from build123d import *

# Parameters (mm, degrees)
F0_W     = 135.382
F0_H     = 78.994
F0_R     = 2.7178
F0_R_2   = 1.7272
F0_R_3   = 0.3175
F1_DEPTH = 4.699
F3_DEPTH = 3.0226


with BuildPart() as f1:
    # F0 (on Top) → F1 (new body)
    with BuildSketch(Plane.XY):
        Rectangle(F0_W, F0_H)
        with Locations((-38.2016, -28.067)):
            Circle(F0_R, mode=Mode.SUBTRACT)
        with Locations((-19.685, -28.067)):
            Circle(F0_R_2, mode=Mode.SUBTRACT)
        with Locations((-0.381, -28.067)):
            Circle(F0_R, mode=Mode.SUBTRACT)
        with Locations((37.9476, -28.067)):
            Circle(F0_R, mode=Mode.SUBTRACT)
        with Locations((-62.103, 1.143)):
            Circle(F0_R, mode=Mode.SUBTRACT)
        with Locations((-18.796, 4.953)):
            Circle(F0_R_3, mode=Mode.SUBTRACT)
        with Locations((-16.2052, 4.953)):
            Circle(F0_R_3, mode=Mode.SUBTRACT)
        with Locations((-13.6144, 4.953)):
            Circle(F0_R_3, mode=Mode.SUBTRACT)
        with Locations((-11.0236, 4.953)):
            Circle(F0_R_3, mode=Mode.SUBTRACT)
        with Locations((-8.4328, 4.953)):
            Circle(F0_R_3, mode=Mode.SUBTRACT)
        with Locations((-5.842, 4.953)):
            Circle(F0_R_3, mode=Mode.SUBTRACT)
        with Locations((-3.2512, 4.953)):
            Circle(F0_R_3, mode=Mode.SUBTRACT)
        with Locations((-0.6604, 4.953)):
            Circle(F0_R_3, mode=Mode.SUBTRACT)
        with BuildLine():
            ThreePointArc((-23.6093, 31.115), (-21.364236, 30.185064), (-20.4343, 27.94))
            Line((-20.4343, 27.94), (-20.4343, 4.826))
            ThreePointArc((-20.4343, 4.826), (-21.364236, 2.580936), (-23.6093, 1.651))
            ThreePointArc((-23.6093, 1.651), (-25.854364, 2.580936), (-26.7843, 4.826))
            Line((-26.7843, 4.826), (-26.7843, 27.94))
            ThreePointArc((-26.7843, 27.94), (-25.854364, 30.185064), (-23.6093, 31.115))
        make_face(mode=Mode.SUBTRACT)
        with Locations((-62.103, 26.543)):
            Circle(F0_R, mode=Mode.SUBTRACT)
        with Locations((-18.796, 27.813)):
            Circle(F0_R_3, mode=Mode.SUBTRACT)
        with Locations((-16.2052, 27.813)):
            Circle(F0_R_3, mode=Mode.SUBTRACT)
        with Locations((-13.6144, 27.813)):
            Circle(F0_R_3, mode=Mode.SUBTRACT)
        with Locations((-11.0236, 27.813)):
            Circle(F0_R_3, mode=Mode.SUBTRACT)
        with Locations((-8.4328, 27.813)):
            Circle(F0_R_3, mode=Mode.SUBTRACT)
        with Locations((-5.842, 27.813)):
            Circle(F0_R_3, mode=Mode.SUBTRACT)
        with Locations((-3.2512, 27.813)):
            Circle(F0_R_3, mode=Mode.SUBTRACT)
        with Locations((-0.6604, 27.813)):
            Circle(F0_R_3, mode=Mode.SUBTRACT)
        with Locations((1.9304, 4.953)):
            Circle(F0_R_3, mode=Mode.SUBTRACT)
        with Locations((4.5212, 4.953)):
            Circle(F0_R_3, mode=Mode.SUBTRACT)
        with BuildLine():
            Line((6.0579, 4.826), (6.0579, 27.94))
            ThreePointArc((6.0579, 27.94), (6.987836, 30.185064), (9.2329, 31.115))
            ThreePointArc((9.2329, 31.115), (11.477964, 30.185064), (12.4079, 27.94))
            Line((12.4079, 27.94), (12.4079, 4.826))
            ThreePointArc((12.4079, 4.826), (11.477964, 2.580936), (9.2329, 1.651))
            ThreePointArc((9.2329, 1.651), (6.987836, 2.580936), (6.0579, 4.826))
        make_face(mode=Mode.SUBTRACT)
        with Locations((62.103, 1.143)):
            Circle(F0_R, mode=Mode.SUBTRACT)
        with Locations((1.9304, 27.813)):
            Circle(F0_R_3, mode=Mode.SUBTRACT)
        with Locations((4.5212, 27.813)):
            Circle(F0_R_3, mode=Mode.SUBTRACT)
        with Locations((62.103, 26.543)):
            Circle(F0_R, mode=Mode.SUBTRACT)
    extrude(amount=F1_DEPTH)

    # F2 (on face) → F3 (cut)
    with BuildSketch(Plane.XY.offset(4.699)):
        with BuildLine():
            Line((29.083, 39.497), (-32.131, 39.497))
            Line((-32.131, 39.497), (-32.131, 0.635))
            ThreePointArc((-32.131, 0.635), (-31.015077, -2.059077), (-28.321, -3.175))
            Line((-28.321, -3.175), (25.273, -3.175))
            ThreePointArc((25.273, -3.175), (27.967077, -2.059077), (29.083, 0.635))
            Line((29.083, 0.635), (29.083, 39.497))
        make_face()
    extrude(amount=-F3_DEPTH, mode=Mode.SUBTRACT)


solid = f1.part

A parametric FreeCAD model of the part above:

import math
import FreeCAD as App
import Part
import Sketcher

V = App.Vector
Q = App.Units.Quantity


def add_polygon(sketch, points):
    """Adds a closed chain of lines whose ends are joined by coincident constraints."""
    first, n = sketch.GeometryCount, len(points)
    for a, b in zip(points, points[1:] + points[:1]):
        sketch.addGeometry(Part.LineSegment(App.Vector(*a, 0), App.Vector(*b, 0)), False)
    for i in range(n):
        sketch.addConstraint(Sketcher.Constraint("Coincident", first + i, 2, first + (i + 1) % n, 1))

doc = App.newDocument("Part")
body = doc.addObject("PartDesign::Body", "Body")

# Sketch on XY plane
sketch1 = body.newObject("Sketcher::SketchObject", "Sketch")
sketch1.AttachmentSupport = (doc.getObject("XY_Plane"), [""])
sketch1.MapMode = "FlatFace"
add_polygon(sketch1, [(-67.69, 39.5), (-67.69, -39.5), (67.69, -39.5), (67.69, 39.5)])  # lines 0-3
sketch1.addGeometry(Part.Circle(V(-38.2, -28.07, 0), V(0, 0, 1), 2.72), False)  # 4
sketch1.addGeometry(Part.Circle(V(-19.68, -28.07, 0), V(0, 0, 1), 1.73), False)  # 5
sketch1.addGeometry(Part.Circle(V(-0.38, -28.07, 0), V(0, 0, 1), 2.72), False)  # 6
sketch1.addGeometry(Part.Circle(V(37.95, -28.07, 0), V(0, 0, 1), 2.72), False)  # 7
sketch1.addGeometry(Part.Circle(V(-62.1, 1.14, 0), V(0, 0, 1), 2.72), False)  # 8
sketch1.addGeometry(Part.Circle(V(-18.8, 4.95, 0), V(0, 0, 1), 0.32), False)  # 9
sketch1.addGeometry(Part.Circle(V(-16.21, 4.95, 0), V(0, 0, 1), 0.32), False)  # 10
sketch1.addGeometry(Part.Circle(V(-13.61, 4.95, 0), V(0, 0, 1), 0.32), False)  # 11
sketch1.addGeometry(Part.Circle(V(-11.02, 4.95, 0), V(0, 0, 1), 0.32), False)  # 12
sketch1.addGeometry(Part.Circle(V(-8.43, 4.95, 0), V(0, 0, 1), 0.32), False)  # 13
sketch1.addGeometry(Part.Circle(V(-5.84, 4.95, 0), V(0, 0, 1), 0.32), False)  # 14
sketch1.addGeometry(Part.Circle(V(-3.25, 4.95, 0), V(0, 0, 1), 0.32), False)  # 15
sketch1.addGeometry(Part.Circle(V(-0.66, 4.95, 0), V(0, 0, 1), 0.32), False)  # 16
sketch1.addGeometry(Part.Circle(V(-62.1, 26.54, 0), V(0, 0, 1), 2.72), False)  # 17
sketch1.addGeometry(Part.ArcOfCircle(Part.Circle(V(-23.61, 27.94, 0), V(0, 0, 1), 3.18), math.radians(90), math.radians(180)), False)  # 18
sketch1.addGeometry(Part.ArcOfCircle(Part.Circle(V(-23.61, 27.94, 0), V(0, 0, 1), 3.18), math.radians(0), math.radians(90)), False)  # 19
sketch1.addGeometry(Part.LineSegment(V(-20.43, 27.94, 0), V(-20.43, 4.83, 0)), False)  # 20
sketch1.addGeometry(Part.ArcOfCircle(Part.Circle(V(-23.61, 4.83, 0), V(0, 0, 1), 3.18), math.radians(-90), math.radians(0)), False)  # 21
sketch1.addGeometry(Part.ArcOfCircle(Part.Circle(V(-23.61, 4.83, 0), V(0, 0, 1), 3.18), math.radians(-180), math.radians(-90)), False)  # 22
sketch1.addGeometry(Part.LineSegment(V(-26.78, 4.83, 0), V(-26.78, 27.94, 0)), False)  # 23
sketch1.addGeometry(Part.Circle(V(-18.8, 27.81, 0), V(0, 0, 1), 0.32), False)  # 24
sketch1.addGeometry(Part.Circle(V(-16.21, 27.81, 0), V(0, 0, 1), 0.32), False)  # 25
sketch1.addGeometry(Part.Circle(V(-13.61, 27.81, 0), V(0, 0, 1), 0.32), False)  # 26
sketch1.addGeometry(Part.Circle(V(-11.02, 27.81, 0), V(0, 0, 1), 0.32), False)  # 27
sketch1.addGeometry(Part.Circle(V(-8.43, 27.81, 0), V(0, 0, 1), 0.32), False)  # 28
sketch1.addGeometry(Part.Circle(V(-5.84, 27.81, 0), V(0, 0, 1), 0.32), False)  # 29
sketch1.addGeometry(Part.Circle(V(-3.25, 27.81, 0), V(0, 0, 1), 0.32), False)  # 30
sketch1.addGeometry(Part.Circle(V(-0.66, 27.81, 0), V(0, 0, 1), 0.32), False)  # 31
sketch1.addGeometry(Part.Circle(V(1.93, 4.95, 0), V(0, 0, 1), 0.32), False)  # 32
sketch1.addGeometry(Part.Circle(V(4.52, 4.95, 0), V(0, 0, 1), 0.32), False)  # 33
sketch1.addGeometry(Part.Circle(V(62.1, 1.14, 0), V(0, 0, 1), 2.72), False)  # 34
sketch1.addGeometry(Part.ArcOfCircle(Part.Circle(V(9.23, 4.83, 0), V(0, 0, 1), 3.18), math.radians(-180), math.radians(-90)), False)  # 35
sketch1.addGeometry(Part.LineSegment(V(6.06, 4.83, 0), V(6.06, 27.94, 0)), False)  # 36
sketch1.addGeometry(Part.ArcOfCircle(Part.Circle(V(9.23, 27.94, 0), V(0, 0, 1), 3.18), math.radians(90), math.radians(180)), False)  # 37
sketch1.addGeometry(Part.ArcOfCircle(Part.Circle(V(9.23, 27.94, 0), V(0, 0, 1), 3.18), math.radians(0), math.radians(90)), False)  # 38
sketch1.addGeometry(Part.LineSegment(V(12.41, 27.94, 0), V(12.41, 4.83, 0)), False)  # 39
sketch1.addGeometry(Part.ArcOfCircle(Part.Circle(V(9.23, 4.83, 0), V(0, 0, 1), 3.18), math.radians(-90), math.radians(0)), False)  # 40
sketch1.addGeometry(Part.Circle(V(1.93, 27.81, 0), V(0, 0, 1), 0.32), False)  # 41
sketch1.addGeometry(Part.Circle(V(4.52, 27.81, 0), V(0, 0, 1), 0.32), False)  # 42
sketch1.addGeometry(Part.Circle(V(62.1, 26.54, 0), V(0, 0, 1), 2.72), False)  # 43
sketch1.addConstraint([
    Sketcher.Constraint("Tangent", 18, 1, 19, 2),
    Sketcher.Constraint("Tangent", 19, 1, 20, 1),
    Sketcher.Constraint("Tangent", 20, 2, 21, 2),
    Sketcher.Constraint("Tangent", 21, 1, 22, 2),
    Sketcher.Constraint("Tangent", 22, 1, 23, 1),
    Sketcher.Constraint("Tangent", 23, 2, 18, 2),
    Sketcher.Constraint("Tangent", 35, 1, 36, 1),
    Sketcher.Constraint("Tangent", 36, 2, 37, 2),
    Sketcher.Constraint("Tangent", 37, 1, 38, 2),
    Sketcher.Constraint("Tangent", 38, 1, 39, 1),
    Sketcher.Constraint("Tangent", 39, 2, 40, 2),
    Sketcher.Constraint("Tangent", 40, 1, 35, 2),
    Sketcher.Constraint("Vertical", 0),
    Sketcher.Constraint("Horizontal", 1),
    Sketcher.Constraint("Vertical", 2),
    Sketcher.Constraint("Horizontal", 3),
    Sketcher.Constraint("Vertical", 20),
    Sketcher.Constraint("Vertical", 23),
    Sketcher.Constraint("Vertical", 36),
    Sketcher.Constraint("Vertical", 39),
    Sketcher.Constraint("Equal", 4, 6),
    Sketcher.Constraint("Equal", 6, 7),
    Sketcher.Constraint("Equal", 7, 8),
    Sketcher.Constraint("Equal", 9, 10),
    Sketcher.Constraint("Equal", 10, 11),
    Sketcher.Constraint("Equal", 11, 12),
    Sketcher.Constraint("Equal", 12, 13),
    Sketcher.Constraint("Equal", 13, 14),
    Sketcher.Constraint("Equal", 14, 15),
    Sketcher.Constraint("Equal", 15, 16),
    Sketcher.Constraint("Equal", 8, 17),
    Sketcher.Constraint("Equal", 18, 19),
    Sketcher.Constraint("Equal", 19, 21),
    Sketcher.Constraint("Equal", 16, 24),
    Sketcher.Constraint("Equal", 24, 25),
    Sketcher.Constraint("Equal", 25, 26),
    Sketcher.Constraint("Equal", 26, 27),
    Sketcher.Constraint("Equal", 27, 28),
    Sketcher.Constraint("Equal", 28, 29),
    Sketcher.Constraint("Equal", 29, 30),
    Sketcher.Constraint("Equal", 30, 31),
    Sketcher.Constraint("Equal", 31, 32),
    Sketcher.Constraint("Equal", 32, 33),
    Sketcher.Constraint("Equal", 17, 34),
    Sketcher.Constraint("Equal", 22, 35),
    Sketcher.Constraint("Equal", 35, 37),
    Sketcher.Constraint("Equal", 37, 38),
    Sketcher.Constraint("Equal", 33, 41),
    Sketcher.Constraint("Equal", 41, 42),
    Sketcher.Constraint("Equal", 34, 43),
    Sketcher.Constraint("Symmetric", 0, 2, 2, 2, -1, 1),
    Sketcher.Constraint("Symmetric", 8, 3, 34, 3, -2),
    Sketcher.Constraint("Symmetric", 17, 3, 43, 3, -2),
    Sketcher.Constraint("Horizontal", 4, 3, 5, 3),
    Sketcher.Constraint("Horizontal", 5, 3, 6, 3),
    Sketcher.Constraint("Horizontal", 6, 3, 7, 3),
    Sketcher.Constraint("Horizontal", 9, 3, 10, 3),
    Sketcher.Constraint("Horizontal", 10, 3, 11, 3),
    Sketcher.Constraint("Horizontal", 11, 3, 12, 3),
    Sketcher.Constraint("Horizontal", 12, 3, 13, 3),
    Sketcher.Constraint("Horizontal", 13, 3, 14, 3),
    Sketcher.Constraint("Horizontal", 14, 3, 15, 3),
    Sketcher.Constraint("Horizontal", 15, 3, 16, 3),
    Sketcher.Constraint("Horizontal", 24, 3, 25, 3),
    Sketcher.Constraint("Horizontal", 25, 3, 26, 3),
    Sketcher.Constraint("Horizontal", 26, 3, 27, 3),
    Sketcher.Constraint("Horizontal", 27, 3, 28, 3),
    Sketcher.Constraint("Horizontal", 28, 3, 29, 3),
    Sketcher.Constraint("Horizontal", 29, 3, 30, 3),
    Sketcher.Constraint("Horizontal", 30, 3, 31, 3),
    Sketcher.Constraint("Horizontal", 16, 3, 32, 3),
    Sketcher.Constraint("Horizontal", 32, 3, 33, 3),
    Sketcher.Constraint("Horizontal", 22, 3, 35, 3),
    Sketcher.Constraint("Horizontal", 19, 3, 37, 3),
    Sketcher.Constraint("Horizontal", 31, 3, 41, 3),
    Sketcher.Constraint("Horizontal", 41, 3, 42, 3),
    Sketcher.Constraint("Vertical", 8, 3, 17, 3),
    Sketcher.Constraint("Vertical", 9, 3, 24, 3),
    Sketcher.Constraint("Vertical", 10, 3, 25, 3),
    Sketcher.Constraint("Vertical", 11, 3, 26, 3),
    Sketcher.Constraint("Vertical", 12, 3, 27, 3),
    Sketcher.Constraint("Vertical", 13, 3, 28, 3),
    Sketcher.Constraint("Vertical", 14, 3, 29, 3),
    Sketcher.Constraint("Vertical", 15, 3, 30, 3),
    Sketcher.Constraint("Vertical", 16, 3, 31, 3),
    Sketcher.Constraint("Vertical", 32, 3, 41, 3),
    Sketcher.Constraint("Vertical", 33, 3, 42, 3),
    Sketcher.Constraint("Vertical", 22, 3, 18, 1),
    Sketcher.Constraint("Vertical", 18, 1, 21, 1),
    Sketcher.Constraint("Vertical", 40, 3, 37, 1),
    Sketcher.Constraint("Vertical", 37, 1, 40, 1),
    Sketcher.Constraint("Diameter", 4, Q("0.214 in")),
    Sketcher.Constraint("Diameter", 5, Q("0.136 in")),
    Sketcher.Constraint("Diameter", 9, Q("0.025 in")),
    Sketcher.Constraint("Radius", 18, Q("0.125 in")),
    Sketcher.Constraint("DistanceY", 8, 3, 17, 3, Q("1 in")),
    Sketcher.Constraint("DistanceX", 1, 1, 1, 2, Q("5.33 in")),
    Sketcher.Constraint("DistanceY", 0, 2, 0, 1, Q("3.11 in")),
    Sketcher.Constraint("DistanceY", 20, 2, 20, 1, Q("0.91 in")),
    Sketcher.Constraint("DistanceY", -1, 1, 18, 3, Q("1.1 in")),
    Sketcher.Constraint("DistanceY", 5, 3, 9, 3, Q("1.3 in")),
    Sketcher.Constraint("DistanceY", 9, 3, 24, 3, Q("0.9 in")),
    Sketcher.Constraint("DistanceY", 0, 2, 8, 3, Q("1.6 in")),
    Sketcher.Constraint("DistanceX", 9, 3, -1, 1, Q("0.74 in")),
    Sketcher.Constraint("DistanceX", 14, 3, -1, 1, Q("0.23 in")),
    Sketcher.Constraint("DistanceX", 5, 3, 6, 3, Q("0.76 in")),
    Sketcher.Constraint("DistanceY", 4, 3, 8, 3, Q("1.15 in")),
    Sketcher.Constraint("DistanceX", 8, 3, 5, 3, Q("1.67 in")),
    Sketcher.Constraint("DistanceX", 10, 3, 15, 3, Q("0.51 in")),
    Sketcher.Constraint("DistanceX", 11, 3, 16, 3, Q("0.51 in")),
    Sketcher.Constraint("DistanceX", 12, 3, 32, 3, Q("0.51 in")),
    Sketcher.Constraint("DistanceX", 13, 3, 33, 3, Q("0.51 in")),
    Sketcher.Constraint("DistanceX", 0, 2, 8, 3, Q("0.22 in")),
    Sketcher.Constraint("DistanceX", 4, 3, -1, 1, Q("1.504 in")),
    Sketcher.Constraint("DistanceX", -1, 1, 7, 3, Q("1.494 in")),
    Sketcher.Constraint("DistanceX", 10, 3, -1, 1, Q("0.638 in")),
    Sketcher.Constraint("DistanceX", 11, 3, -1, 1, Q("0.536 in")),
    Sketcher.Constraint("DistanceX", 12, 3, -1, 1, Q("0.434 in")),
    Sketcher.Constraint("DistanceX", 13, 3, -1, 1, Q("0.332 in")),
    Sketcher.Constraint("DistanceX", 18, 3, -1, 1, Q("0.9295 in")),
    Sketcher.Constraint("DistanceX", -1, 1, 35, 3, Q("0.3635 in")),
])
pad1 = body.newObject("PartDesign::Pad", "Pad")
pad1.Profile = sketch1
pad1.Length = Q("0.185 in")

# Sketch on XY plane
sketch2 = body.newObject("Sketcher::SketchObject", "Sketch001")
sketch2.AttachmentSupport = (doc.getObject("XY_Plane"), [""])
sketch2.MapMode = "FlatFace"
sketch2.AttachmentOffset = App.Placement(V(0, 0, 0.185 * 25.4), App.Rotation())
sketch2.addGeometry([
    Part.LineSegment(V(29.1, 39.5, 0), V(-32.1, 39.5, 0)),  # 0
    Part.LineSegment(V(-32.1, 39.5, 0), V(-32.1, 0.6, 0)),  # 1
    Part.ArcOfCircle(Part.Circle(V(-28.3, 0.6, 0), V(0, 0, 1), 3.8), math.radians(180), math.radians(270)),  # 2
    Part.LineSegment(V(-28.3, -3.2, 0), V(25.3, -3.2, 0)),  # 3
    Part.ArcOfCircle(Part.Circle(V(25.3, 0.6, 0), V(0, 0, 1), 3.8), math.radians(-90), math.radians(0)),  # 4
    Part.LineSegment(V(29.1, 0.6, 0), V(29.1, 39.5, 0)),  # 5
], False)
sketch2.addConstraint([
    Sketcher.Constraint("Coincident", 0, 2, 1, 1),
    Sketcher.Constraint("Tangent", 1, 2, 2, 1),
    Sketcher.Constraint("Tangent", 2, 2, 3, 1),
    Sketcher.Constraint("Tangent", 3, 2, 4, 1),
    Sketcher.Constraint("Tangent", 4, 2, 5, 1),
    Sketcher.Constraint("Coincident", 5, 2, 0, 1),
    Sketcher.Constraint("Horizontal", 0),
    Sketcher.Constraint("Vertical", 1),
    Sketcher.Constraint("Horizontal", 3),
    Sketcher.Constraint("Vertical", 5),
    Sketcher.Constraint("Equal", 2, 4),
    Sketcher.Constraint("Radius", 2, Q("0.15 in")),
    Sketcher.Constraint("DistanceX", 0, 2, 0, 1, Q("2.41 in")),
    Sketcher.Constraint("DistanceY", 1, 2, 1, 1, Q("1.53 in")),
    Sketcher.Constraint("DistanceX", 2, 3, -1, 1, Q("1.115 in")),
    Sketcher.Constraint("DistanceY", -1, 1, 2, 3, Q("0.025 in")),
])
pocket1 = body.newObject("PartDesign::Pocket", "Pocket")
pocket1.Profile = sketch2
pocket1.Length = Q("0.119 in")

doc.recompute()
